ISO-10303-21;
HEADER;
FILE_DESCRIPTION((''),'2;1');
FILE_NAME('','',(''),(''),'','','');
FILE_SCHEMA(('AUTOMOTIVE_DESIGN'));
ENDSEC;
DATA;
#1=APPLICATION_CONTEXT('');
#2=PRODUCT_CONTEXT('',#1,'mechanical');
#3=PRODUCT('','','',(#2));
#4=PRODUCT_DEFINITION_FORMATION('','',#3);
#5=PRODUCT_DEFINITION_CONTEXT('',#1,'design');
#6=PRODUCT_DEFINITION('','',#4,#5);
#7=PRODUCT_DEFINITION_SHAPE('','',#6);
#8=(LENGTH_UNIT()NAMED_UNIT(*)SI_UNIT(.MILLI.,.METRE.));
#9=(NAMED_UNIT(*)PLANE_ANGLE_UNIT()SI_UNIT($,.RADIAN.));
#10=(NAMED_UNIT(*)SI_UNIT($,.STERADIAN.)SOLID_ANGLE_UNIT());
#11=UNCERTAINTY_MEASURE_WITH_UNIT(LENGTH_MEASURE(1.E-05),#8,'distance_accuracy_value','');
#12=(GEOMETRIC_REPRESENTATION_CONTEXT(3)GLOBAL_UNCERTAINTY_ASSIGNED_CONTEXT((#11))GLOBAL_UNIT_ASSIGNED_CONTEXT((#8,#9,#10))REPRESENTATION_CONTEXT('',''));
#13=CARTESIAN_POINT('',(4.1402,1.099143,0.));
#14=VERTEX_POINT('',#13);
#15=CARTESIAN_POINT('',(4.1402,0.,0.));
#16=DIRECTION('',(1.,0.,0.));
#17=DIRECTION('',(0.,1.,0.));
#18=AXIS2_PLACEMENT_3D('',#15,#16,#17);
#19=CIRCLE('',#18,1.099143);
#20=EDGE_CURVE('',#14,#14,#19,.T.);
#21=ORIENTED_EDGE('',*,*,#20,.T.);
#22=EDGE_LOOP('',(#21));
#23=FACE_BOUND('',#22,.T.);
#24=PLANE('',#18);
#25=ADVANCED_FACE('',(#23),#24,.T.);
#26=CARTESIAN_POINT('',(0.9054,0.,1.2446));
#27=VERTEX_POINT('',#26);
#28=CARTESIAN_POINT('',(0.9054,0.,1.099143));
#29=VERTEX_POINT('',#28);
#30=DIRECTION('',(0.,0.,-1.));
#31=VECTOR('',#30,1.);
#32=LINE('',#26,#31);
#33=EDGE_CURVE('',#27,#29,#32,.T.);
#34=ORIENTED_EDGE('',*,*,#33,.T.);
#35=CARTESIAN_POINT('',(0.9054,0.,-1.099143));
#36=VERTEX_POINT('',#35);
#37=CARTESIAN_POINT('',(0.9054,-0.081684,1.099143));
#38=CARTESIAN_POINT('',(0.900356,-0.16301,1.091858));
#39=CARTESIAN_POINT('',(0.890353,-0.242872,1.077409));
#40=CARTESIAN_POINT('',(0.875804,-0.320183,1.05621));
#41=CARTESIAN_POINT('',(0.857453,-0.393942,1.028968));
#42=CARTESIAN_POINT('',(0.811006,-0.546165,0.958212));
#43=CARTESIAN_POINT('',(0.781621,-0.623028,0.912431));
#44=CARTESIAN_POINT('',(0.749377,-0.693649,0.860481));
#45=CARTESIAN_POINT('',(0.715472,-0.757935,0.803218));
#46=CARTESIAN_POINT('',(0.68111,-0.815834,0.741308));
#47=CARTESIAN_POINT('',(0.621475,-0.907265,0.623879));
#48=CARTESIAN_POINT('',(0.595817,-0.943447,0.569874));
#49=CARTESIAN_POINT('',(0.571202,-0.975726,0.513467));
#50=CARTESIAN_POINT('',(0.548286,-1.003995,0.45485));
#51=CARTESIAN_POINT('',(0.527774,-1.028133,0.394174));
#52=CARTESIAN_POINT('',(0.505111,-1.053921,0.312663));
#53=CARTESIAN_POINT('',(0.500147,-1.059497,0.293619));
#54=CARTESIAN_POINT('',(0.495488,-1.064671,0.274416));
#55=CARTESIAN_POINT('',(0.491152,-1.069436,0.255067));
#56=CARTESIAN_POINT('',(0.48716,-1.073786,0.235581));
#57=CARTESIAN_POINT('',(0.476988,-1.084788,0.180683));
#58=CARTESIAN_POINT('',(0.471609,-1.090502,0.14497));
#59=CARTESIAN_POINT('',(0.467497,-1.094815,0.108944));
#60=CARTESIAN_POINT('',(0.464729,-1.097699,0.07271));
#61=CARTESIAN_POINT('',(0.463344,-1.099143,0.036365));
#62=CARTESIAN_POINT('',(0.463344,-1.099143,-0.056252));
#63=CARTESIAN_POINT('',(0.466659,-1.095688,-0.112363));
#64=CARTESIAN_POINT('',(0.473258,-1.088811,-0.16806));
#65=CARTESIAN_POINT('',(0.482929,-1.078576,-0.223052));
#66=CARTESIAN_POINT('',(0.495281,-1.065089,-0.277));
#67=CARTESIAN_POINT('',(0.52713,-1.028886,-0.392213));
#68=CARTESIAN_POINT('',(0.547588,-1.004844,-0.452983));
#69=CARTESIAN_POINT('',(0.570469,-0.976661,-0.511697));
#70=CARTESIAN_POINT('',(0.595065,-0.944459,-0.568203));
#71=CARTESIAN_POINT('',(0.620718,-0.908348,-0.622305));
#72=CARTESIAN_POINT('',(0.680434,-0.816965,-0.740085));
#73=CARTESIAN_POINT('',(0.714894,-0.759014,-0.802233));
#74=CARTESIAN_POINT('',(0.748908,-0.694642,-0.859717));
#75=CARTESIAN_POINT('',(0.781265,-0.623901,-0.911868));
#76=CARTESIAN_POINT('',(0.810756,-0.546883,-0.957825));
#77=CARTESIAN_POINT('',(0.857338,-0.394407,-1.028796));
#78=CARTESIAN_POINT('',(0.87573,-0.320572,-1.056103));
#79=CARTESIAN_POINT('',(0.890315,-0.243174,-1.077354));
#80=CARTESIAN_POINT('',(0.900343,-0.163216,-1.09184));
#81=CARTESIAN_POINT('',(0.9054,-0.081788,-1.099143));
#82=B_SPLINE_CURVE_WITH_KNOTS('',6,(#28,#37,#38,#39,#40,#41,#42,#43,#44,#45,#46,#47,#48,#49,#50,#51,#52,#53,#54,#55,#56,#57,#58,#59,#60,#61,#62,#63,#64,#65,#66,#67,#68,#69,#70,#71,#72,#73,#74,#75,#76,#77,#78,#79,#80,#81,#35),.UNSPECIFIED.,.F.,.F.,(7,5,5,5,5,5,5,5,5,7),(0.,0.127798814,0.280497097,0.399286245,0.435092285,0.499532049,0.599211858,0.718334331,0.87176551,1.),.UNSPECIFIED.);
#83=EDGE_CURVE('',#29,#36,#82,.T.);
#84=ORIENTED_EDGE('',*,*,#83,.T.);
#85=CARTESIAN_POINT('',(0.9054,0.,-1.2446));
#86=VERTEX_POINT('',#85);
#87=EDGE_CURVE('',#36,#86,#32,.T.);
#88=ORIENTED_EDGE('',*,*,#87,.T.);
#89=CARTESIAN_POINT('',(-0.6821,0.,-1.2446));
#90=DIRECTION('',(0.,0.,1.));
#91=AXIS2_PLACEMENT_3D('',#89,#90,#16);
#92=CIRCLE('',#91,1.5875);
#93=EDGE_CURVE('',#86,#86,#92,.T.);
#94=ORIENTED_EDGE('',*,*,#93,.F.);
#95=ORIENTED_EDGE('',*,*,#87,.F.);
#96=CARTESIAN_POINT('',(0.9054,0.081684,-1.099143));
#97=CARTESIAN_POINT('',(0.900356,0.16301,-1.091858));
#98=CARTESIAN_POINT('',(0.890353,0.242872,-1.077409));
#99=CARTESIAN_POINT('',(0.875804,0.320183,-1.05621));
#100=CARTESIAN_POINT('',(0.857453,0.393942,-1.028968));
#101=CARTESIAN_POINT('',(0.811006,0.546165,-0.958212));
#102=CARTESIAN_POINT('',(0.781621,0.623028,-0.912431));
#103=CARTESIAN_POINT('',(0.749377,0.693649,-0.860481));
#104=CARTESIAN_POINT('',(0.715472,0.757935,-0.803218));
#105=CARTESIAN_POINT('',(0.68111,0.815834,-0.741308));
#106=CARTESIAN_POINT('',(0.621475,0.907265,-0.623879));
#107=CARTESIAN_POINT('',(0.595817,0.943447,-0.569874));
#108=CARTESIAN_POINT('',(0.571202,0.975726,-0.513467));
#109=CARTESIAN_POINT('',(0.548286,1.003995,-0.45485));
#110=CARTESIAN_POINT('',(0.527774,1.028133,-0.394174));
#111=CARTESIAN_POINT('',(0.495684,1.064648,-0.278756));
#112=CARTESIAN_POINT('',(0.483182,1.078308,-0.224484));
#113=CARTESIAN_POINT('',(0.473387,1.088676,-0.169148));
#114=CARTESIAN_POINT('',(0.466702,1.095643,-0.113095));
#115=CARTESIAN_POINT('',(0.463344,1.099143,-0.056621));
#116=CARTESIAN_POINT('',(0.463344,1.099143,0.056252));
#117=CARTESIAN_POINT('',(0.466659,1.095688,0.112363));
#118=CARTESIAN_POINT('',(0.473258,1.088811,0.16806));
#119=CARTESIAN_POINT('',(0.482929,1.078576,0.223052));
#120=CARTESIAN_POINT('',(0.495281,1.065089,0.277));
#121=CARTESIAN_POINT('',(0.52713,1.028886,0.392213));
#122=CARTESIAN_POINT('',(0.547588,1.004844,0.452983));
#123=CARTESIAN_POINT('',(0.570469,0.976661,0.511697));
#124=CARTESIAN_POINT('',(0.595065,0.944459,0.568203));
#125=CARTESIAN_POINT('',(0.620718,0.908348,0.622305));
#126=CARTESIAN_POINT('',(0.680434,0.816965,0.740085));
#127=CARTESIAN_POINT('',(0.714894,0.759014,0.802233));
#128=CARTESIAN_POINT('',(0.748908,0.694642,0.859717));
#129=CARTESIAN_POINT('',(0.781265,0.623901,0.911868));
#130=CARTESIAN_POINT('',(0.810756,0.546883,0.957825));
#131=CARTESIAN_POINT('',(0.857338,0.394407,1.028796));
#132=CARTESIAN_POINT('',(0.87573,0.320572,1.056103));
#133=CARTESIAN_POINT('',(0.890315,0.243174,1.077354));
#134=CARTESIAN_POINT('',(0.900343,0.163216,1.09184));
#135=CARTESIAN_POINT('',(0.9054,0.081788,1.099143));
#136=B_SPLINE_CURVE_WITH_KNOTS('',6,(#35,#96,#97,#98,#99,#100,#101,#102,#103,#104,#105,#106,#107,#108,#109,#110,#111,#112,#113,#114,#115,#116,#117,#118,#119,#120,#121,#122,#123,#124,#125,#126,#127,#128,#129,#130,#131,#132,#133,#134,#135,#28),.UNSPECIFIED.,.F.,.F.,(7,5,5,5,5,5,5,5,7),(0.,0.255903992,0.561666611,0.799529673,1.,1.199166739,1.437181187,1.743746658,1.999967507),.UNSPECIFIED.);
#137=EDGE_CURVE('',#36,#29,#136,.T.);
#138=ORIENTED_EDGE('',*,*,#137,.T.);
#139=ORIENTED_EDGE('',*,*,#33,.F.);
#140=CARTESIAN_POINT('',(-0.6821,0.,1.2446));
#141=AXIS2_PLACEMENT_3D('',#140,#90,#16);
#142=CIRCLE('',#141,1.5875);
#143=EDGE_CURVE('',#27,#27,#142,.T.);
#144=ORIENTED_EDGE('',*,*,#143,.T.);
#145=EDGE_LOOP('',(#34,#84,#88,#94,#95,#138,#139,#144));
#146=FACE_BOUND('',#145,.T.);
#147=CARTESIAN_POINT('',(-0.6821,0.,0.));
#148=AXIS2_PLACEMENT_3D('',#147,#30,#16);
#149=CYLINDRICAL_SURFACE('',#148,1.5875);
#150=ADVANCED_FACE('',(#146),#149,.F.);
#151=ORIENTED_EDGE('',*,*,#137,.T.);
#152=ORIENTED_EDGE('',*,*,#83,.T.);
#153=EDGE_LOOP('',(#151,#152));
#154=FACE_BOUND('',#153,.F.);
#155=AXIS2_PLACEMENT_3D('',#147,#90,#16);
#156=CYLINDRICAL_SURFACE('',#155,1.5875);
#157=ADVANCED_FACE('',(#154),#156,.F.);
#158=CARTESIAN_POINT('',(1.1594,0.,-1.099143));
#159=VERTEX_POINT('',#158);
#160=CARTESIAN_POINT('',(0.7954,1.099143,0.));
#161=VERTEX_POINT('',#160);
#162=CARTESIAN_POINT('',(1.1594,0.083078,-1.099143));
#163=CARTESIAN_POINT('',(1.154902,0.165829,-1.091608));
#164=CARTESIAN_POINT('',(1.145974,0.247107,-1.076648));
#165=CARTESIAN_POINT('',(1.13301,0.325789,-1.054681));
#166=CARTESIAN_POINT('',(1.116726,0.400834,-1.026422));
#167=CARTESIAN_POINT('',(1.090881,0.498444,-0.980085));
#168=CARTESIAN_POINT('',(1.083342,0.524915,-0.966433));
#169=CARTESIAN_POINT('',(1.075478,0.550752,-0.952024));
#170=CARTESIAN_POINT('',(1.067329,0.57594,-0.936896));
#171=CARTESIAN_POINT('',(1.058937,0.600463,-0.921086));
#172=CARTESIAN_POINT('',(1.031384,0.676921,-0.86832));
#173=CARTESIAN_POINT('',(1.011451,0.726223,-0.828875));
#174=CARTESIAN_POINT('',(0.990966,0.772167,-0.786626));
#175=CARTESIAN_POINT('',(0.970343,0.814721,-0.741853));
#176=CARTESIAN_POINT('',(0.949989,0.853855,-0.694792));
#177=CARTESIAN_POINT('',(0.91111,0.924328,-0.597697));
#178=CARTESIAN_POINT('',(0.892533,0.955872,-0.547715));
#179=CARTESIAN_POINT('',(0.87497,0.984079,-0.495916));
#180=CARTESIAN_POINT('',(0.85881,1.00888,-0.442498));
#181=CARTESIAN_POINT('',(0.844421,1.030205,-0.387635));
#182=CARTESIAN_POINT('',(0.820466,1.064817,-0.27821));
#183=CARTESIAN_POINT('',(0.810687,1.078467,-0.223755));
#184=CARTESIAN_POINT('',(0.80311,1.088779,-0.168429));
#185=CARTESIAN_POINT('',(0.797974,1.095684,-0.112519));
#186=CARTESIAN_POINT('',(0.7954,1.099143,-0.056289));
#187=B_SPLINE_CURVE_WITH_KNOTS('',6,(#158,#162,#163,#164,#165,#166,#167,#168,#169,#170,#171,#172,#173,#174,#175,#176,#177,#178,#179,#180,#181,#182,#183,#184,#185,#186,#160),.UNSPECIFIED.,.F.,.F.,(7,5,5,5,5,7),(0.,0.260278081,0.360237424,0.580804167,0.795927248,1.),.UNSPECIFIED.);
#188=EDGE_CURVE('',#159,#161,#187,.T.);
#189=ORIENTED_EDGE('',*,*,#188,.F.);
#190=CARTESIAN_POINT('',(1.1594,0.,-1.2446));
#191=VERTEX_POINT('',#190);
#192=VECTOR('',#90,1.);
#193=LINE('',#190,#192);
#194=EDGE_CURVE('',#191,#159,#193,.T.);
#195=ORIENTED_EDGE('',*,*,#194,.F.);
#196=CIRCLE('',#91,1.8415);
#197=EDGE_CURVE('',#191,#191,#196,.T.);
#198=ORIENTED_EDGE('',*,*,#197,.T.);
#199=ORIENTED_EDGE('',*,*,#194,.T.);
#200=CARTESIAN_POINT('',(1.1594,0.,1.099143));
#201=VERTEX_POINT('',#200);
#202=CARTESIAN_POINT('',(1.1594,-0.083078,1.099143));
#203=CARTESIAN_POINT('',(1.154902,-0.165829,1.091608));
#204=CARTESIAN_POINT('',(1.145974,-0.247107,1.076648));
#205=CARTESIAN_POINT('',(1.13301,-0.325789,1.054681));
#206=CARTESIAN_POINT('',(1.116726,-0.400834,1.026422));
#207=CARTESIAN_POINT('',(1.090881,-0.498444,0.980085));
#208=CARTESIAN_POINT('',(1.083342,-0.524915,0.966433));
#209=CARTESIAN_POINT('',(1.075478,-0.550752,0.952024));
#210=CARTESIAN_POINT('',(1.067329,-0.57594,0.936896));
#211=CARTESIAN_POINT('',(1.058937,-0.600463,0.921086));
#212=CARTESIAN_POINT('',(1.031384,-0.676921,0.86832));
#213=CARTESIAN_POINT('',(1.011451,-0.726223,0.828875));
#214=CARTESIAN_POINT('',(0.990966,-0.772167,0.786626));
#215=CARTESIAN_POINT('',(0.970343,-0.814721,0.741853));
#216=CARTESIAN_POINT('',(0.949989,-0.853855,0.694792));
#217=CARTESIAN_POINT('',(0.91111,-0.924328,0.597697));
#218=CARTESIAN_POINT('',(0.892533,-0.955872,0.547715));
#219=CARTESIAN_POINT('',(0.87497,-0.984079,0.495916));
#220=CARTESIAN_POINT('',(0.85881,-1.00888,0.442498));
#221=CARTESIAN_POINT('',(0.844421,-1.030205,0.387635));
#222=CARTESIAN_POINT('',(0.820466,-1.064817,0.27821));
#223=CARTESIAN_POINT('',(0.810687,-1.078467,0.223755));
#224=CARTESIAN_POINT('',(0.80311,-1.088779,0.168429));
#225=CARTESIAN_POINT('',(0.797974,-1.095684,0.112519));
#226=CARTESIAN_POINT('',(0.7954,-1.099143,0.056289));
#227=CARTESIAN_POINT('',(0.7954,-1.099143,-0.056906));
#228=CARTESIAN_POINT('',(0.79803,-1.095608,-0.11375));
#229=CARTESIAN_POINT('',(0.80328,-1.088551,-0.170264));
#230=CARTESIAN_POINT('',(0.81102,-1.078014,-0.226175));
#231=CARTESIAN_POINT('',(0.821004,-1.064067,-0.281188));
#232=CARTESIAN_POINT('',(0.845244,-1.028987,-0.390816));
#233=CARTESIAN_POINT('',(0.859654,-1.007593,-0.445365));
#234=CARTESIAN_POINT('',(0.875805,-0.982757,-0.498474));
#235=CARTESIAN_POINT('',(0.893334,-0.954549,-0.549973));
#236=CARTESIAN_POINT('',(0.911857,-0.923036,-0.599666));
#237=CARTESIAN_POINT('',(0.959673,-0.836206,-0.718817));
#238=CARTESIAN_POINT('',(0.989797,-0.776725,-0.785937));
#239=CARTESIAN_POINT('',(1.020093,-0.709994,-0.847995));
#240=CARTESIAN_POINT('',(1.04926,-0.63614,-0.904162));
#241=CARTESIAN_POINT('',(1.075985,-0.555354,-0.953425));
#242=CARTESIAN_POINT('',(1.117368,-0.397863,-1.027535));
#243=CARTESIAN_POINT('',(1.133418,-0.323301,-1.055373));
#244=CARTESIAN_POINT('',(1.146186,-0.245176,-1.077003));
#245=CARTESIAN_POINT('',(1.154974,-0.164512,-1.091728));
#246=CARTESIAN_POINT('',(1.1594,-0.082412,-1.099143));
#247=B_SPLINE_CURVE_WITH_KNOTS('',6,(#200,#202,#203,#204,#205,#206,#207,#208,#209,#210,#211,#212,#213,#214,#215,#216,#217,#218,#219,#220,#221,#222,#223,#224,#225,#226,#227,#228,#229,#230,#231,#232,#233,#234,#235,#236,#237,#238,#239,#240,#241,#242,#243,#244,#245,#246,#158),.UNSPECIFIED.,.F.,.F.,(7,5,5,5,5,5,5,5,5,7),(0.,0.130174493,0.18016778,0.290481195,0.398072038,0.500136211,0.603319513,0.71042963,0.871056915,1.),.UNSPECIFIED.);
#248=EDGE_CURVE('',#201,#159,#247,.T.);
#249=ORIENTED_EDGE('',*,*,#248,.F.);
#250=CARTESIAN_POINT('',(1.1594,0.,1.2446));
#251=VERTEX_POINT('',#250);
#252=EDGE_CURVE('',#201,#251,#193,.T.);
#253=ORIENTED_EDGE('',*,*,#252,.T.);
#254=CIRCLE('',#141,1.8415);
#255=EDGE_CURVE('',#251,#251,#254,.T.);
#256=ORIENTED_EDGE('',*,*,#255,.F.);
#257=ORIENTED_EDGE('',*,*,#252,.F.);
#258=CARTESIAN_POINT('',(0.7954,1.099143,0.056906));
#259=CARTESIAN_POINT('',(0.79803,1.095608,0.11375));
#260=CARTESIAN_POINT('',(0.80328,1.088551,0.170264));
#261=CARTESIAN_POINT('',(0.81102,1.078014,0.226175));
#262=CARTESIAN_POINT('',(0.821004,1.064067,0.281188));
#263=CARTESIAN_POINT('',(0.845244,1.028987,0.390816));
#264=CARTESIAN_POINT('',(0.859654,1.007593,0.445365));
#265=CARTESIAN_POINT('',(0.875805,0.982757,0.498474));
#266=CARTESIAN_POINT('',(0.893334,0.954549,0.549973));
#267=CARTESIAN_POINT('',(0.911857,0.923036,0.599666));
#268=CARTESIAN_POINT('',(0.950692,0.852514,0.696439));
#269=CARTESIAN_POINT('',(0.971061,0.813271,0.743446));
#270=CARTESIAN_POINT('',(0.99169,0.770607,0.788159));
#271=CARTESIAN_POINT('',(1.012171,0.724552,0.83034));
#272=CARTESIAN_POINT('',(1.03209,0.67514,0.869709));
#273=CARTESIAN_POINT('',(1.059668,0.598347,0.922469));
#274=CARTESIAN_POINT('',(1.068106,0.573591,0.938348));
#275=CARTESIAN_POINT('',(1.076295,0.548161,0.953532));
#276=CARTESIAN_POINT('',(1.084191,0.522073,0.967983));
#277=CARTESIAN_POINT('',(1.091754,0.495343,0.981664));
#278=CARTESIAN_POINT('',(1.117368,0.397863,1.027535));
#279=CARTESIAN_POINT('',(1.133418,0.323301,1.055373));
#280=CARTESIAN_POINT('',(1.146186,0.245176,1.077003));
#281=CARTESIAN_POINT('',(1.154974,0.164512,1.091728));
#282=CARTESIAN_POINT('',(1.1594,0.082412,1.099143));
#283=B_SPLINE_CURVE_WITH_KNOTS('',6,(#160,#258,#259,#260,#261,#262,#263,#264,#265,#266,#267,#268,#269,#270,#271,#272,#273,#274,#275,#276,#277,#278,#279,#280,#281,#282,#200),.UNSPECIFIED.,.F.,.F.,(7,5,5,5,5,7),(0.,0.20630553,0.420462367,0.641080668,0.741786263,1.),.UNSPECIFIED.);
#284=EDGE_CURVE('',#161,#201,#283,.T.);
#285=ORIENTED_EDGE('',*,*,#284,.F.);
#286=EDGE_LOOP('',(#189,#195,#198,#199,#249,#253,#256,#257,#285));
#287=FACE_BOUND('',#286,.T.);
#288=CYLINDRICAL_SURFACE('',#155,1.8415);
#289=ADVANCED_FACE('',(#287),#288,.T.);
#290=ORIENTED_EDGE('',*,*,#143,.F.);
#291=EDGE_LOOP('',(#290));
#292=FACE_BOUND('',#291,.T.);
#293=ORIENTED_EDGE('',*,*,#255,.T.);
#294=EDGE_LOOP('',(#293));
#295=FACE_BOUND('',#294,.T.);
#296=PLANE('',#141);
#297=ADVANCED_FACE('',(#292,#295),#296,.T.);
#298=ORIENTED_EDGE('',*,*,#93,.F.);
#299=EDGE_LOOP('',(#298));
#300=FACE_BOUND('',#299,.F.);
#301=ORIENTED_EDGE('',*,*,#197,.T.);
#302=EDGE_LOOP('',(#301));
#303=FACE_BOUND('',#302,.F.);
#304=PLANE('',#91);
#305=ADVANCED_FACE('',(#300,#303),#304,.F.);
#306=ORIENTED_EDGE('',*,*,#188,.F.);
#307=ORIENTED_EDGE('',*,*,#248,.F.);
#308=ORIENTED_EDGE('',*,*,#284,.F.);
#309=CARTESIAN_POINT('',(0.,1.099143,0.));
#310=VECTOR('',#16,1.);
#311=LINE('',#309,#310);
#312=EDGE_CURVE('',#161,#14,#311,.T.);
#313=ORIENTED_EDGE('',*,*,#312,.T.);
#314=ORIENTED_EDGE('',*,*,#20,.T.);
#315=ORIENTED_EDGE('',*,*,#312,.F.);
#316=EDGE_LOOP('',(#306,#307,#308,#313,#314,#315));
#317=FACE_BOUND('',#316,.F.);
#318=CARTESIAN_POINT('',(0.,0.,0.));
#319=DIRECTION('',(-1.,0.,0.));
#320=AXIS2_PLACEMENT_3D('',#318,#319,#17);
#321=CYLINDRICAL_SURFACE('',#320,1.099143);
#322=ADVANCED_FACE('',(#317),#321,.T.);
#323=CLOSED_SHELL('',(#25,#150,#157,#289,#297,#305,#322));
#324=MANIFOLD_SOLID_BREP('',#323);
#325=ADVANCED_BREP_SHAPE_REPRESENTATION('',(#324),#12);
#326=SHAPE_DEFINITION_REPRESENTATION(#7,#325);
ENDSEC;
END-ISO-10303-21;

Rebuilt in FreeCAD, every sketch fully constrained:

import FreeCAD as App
import Part
import Sketcher
from FreeCAD import Vector
Q = App.Units.Quantity

doc = App.newDocument("Part")
params = doc.addObject("Spreadsheet::Sheet", "Params")
for row, (alias, value) in enumerate([
    ("sketch1_diameter", "0.145 in"),
    ("sketch1_diameter2", "0.125 in"),
    ("pad1_length", "0.098 in"),
    ("pad2_length", "0.163 in"),
    ("sketch3_diameter", "0.125 in"),
    ("pocket1_length", "1 in"),
], start=1):
    params.set(f"A{row}", alias)
    params.set(f"B{row}", "=" + value)
    params.setAlias(f"B{row}", alias)

body = doc.addObject("PartDesign::Body", "Body")

# Sketch on XY plane
sketch1 = body.newObject("Sketcher::SketchObject", "Sketch")
sketch1.AttachmentSupport = (doc.getObject("XY_Plane"), [""])
sketch1.MapMode = "FlatFace"
sketch1.addGeometry([
    Part.Circle(Vector(-0.7, 0, 0), Vector(0, 0, 1), 1.8),
    Part.Circle(Vector(-0.7, 0, 0), Vector(0, 0, 1), 1.6),
], False)
sketch1.addConstraint([
    Sketcher.Constraint("Coincident", 1, 3, 0, 3),
    Sketcher.Constraint("PointOnObject", 0, 3, -1),
    Sketcher.Constraint("Diameter", 0, Q("0.145 in")),
    Sketcher.Constraint("Diameter", 1, Q("0.125 in")),
    Sketcher.Constraint("DistanceX", 0, 3, -1, 1, Q("0.6821 mm")),
])
sketch1.setExpression("Constraints[2]", "Params.sketch1_diameter")
sketch1.setExpression("Constraints[3]", "Params.sketch1_diameter2")
pad1 = body.newObject("PartDesign::Pad", "Pad")
pad1.Profile = sketch1
pad1.setExpression("Length", "Params.pad1_length")
pad1.Midplane = True

# Sketch on YZ plane
sketch2 = body.newObject("Sketcher::SketchObject", "Sketch001")
sketch2.AttachmentSupport = (doc.getObject("YZ_Plane"), [""])
sketch2.MapMode = "FlatFace"
sketch2.addGeometry(Part.Circle(Vector(0, 0, 0), Vector(0, 0, 1), 1.1), False)
sketch2.addConstraint([
    Sketcher.Constraint("Coincident", 0, 3, -1, 1),
    Sketcher.Constraint("Diameter", 0, Q("2.198286 mm")),
])
pad2 = body.newObject("PartDesign::Pad", "Pad001")
pad2.Profile = sketch2
pad2.setExpression("Length", "Params.pad2_length")

# Sketch on XY plane
sketch3 = body.newObject("Sketcher::SketchObject", "Sketch002")
sketch3.AttachmentSupport = (doc.getObject("XY_Plane"), [""])
sketch3.MapMode = "FlatFace"
sketch3.addGeometry(Part.Circle(Vector(-0.7, 0, 0), Vector(0, 0, 1), 1.6), False)
sketch3.addConstraint([
    Sketcher.Constraint("PointOnObject", 0, 3, -1),
    Sketcher.Constraint("Diameter", 0, Q("0.125 in")),
    Sketcher.Constraint("DistanceX", 0, 3, -1, 1, Q("0.6821 mm")),
])
sketch3.setExpression("Constraints[1]", "Params.sketch3_diameter")
pocket1 = body.newObject("PartDesign::Pocket", "Pocket")
pocket1.Profile = sketch3
pocket1.setExpression("Length", "Params.pocket1_length")
pocket1.Midplane = True

doc.recompute()
